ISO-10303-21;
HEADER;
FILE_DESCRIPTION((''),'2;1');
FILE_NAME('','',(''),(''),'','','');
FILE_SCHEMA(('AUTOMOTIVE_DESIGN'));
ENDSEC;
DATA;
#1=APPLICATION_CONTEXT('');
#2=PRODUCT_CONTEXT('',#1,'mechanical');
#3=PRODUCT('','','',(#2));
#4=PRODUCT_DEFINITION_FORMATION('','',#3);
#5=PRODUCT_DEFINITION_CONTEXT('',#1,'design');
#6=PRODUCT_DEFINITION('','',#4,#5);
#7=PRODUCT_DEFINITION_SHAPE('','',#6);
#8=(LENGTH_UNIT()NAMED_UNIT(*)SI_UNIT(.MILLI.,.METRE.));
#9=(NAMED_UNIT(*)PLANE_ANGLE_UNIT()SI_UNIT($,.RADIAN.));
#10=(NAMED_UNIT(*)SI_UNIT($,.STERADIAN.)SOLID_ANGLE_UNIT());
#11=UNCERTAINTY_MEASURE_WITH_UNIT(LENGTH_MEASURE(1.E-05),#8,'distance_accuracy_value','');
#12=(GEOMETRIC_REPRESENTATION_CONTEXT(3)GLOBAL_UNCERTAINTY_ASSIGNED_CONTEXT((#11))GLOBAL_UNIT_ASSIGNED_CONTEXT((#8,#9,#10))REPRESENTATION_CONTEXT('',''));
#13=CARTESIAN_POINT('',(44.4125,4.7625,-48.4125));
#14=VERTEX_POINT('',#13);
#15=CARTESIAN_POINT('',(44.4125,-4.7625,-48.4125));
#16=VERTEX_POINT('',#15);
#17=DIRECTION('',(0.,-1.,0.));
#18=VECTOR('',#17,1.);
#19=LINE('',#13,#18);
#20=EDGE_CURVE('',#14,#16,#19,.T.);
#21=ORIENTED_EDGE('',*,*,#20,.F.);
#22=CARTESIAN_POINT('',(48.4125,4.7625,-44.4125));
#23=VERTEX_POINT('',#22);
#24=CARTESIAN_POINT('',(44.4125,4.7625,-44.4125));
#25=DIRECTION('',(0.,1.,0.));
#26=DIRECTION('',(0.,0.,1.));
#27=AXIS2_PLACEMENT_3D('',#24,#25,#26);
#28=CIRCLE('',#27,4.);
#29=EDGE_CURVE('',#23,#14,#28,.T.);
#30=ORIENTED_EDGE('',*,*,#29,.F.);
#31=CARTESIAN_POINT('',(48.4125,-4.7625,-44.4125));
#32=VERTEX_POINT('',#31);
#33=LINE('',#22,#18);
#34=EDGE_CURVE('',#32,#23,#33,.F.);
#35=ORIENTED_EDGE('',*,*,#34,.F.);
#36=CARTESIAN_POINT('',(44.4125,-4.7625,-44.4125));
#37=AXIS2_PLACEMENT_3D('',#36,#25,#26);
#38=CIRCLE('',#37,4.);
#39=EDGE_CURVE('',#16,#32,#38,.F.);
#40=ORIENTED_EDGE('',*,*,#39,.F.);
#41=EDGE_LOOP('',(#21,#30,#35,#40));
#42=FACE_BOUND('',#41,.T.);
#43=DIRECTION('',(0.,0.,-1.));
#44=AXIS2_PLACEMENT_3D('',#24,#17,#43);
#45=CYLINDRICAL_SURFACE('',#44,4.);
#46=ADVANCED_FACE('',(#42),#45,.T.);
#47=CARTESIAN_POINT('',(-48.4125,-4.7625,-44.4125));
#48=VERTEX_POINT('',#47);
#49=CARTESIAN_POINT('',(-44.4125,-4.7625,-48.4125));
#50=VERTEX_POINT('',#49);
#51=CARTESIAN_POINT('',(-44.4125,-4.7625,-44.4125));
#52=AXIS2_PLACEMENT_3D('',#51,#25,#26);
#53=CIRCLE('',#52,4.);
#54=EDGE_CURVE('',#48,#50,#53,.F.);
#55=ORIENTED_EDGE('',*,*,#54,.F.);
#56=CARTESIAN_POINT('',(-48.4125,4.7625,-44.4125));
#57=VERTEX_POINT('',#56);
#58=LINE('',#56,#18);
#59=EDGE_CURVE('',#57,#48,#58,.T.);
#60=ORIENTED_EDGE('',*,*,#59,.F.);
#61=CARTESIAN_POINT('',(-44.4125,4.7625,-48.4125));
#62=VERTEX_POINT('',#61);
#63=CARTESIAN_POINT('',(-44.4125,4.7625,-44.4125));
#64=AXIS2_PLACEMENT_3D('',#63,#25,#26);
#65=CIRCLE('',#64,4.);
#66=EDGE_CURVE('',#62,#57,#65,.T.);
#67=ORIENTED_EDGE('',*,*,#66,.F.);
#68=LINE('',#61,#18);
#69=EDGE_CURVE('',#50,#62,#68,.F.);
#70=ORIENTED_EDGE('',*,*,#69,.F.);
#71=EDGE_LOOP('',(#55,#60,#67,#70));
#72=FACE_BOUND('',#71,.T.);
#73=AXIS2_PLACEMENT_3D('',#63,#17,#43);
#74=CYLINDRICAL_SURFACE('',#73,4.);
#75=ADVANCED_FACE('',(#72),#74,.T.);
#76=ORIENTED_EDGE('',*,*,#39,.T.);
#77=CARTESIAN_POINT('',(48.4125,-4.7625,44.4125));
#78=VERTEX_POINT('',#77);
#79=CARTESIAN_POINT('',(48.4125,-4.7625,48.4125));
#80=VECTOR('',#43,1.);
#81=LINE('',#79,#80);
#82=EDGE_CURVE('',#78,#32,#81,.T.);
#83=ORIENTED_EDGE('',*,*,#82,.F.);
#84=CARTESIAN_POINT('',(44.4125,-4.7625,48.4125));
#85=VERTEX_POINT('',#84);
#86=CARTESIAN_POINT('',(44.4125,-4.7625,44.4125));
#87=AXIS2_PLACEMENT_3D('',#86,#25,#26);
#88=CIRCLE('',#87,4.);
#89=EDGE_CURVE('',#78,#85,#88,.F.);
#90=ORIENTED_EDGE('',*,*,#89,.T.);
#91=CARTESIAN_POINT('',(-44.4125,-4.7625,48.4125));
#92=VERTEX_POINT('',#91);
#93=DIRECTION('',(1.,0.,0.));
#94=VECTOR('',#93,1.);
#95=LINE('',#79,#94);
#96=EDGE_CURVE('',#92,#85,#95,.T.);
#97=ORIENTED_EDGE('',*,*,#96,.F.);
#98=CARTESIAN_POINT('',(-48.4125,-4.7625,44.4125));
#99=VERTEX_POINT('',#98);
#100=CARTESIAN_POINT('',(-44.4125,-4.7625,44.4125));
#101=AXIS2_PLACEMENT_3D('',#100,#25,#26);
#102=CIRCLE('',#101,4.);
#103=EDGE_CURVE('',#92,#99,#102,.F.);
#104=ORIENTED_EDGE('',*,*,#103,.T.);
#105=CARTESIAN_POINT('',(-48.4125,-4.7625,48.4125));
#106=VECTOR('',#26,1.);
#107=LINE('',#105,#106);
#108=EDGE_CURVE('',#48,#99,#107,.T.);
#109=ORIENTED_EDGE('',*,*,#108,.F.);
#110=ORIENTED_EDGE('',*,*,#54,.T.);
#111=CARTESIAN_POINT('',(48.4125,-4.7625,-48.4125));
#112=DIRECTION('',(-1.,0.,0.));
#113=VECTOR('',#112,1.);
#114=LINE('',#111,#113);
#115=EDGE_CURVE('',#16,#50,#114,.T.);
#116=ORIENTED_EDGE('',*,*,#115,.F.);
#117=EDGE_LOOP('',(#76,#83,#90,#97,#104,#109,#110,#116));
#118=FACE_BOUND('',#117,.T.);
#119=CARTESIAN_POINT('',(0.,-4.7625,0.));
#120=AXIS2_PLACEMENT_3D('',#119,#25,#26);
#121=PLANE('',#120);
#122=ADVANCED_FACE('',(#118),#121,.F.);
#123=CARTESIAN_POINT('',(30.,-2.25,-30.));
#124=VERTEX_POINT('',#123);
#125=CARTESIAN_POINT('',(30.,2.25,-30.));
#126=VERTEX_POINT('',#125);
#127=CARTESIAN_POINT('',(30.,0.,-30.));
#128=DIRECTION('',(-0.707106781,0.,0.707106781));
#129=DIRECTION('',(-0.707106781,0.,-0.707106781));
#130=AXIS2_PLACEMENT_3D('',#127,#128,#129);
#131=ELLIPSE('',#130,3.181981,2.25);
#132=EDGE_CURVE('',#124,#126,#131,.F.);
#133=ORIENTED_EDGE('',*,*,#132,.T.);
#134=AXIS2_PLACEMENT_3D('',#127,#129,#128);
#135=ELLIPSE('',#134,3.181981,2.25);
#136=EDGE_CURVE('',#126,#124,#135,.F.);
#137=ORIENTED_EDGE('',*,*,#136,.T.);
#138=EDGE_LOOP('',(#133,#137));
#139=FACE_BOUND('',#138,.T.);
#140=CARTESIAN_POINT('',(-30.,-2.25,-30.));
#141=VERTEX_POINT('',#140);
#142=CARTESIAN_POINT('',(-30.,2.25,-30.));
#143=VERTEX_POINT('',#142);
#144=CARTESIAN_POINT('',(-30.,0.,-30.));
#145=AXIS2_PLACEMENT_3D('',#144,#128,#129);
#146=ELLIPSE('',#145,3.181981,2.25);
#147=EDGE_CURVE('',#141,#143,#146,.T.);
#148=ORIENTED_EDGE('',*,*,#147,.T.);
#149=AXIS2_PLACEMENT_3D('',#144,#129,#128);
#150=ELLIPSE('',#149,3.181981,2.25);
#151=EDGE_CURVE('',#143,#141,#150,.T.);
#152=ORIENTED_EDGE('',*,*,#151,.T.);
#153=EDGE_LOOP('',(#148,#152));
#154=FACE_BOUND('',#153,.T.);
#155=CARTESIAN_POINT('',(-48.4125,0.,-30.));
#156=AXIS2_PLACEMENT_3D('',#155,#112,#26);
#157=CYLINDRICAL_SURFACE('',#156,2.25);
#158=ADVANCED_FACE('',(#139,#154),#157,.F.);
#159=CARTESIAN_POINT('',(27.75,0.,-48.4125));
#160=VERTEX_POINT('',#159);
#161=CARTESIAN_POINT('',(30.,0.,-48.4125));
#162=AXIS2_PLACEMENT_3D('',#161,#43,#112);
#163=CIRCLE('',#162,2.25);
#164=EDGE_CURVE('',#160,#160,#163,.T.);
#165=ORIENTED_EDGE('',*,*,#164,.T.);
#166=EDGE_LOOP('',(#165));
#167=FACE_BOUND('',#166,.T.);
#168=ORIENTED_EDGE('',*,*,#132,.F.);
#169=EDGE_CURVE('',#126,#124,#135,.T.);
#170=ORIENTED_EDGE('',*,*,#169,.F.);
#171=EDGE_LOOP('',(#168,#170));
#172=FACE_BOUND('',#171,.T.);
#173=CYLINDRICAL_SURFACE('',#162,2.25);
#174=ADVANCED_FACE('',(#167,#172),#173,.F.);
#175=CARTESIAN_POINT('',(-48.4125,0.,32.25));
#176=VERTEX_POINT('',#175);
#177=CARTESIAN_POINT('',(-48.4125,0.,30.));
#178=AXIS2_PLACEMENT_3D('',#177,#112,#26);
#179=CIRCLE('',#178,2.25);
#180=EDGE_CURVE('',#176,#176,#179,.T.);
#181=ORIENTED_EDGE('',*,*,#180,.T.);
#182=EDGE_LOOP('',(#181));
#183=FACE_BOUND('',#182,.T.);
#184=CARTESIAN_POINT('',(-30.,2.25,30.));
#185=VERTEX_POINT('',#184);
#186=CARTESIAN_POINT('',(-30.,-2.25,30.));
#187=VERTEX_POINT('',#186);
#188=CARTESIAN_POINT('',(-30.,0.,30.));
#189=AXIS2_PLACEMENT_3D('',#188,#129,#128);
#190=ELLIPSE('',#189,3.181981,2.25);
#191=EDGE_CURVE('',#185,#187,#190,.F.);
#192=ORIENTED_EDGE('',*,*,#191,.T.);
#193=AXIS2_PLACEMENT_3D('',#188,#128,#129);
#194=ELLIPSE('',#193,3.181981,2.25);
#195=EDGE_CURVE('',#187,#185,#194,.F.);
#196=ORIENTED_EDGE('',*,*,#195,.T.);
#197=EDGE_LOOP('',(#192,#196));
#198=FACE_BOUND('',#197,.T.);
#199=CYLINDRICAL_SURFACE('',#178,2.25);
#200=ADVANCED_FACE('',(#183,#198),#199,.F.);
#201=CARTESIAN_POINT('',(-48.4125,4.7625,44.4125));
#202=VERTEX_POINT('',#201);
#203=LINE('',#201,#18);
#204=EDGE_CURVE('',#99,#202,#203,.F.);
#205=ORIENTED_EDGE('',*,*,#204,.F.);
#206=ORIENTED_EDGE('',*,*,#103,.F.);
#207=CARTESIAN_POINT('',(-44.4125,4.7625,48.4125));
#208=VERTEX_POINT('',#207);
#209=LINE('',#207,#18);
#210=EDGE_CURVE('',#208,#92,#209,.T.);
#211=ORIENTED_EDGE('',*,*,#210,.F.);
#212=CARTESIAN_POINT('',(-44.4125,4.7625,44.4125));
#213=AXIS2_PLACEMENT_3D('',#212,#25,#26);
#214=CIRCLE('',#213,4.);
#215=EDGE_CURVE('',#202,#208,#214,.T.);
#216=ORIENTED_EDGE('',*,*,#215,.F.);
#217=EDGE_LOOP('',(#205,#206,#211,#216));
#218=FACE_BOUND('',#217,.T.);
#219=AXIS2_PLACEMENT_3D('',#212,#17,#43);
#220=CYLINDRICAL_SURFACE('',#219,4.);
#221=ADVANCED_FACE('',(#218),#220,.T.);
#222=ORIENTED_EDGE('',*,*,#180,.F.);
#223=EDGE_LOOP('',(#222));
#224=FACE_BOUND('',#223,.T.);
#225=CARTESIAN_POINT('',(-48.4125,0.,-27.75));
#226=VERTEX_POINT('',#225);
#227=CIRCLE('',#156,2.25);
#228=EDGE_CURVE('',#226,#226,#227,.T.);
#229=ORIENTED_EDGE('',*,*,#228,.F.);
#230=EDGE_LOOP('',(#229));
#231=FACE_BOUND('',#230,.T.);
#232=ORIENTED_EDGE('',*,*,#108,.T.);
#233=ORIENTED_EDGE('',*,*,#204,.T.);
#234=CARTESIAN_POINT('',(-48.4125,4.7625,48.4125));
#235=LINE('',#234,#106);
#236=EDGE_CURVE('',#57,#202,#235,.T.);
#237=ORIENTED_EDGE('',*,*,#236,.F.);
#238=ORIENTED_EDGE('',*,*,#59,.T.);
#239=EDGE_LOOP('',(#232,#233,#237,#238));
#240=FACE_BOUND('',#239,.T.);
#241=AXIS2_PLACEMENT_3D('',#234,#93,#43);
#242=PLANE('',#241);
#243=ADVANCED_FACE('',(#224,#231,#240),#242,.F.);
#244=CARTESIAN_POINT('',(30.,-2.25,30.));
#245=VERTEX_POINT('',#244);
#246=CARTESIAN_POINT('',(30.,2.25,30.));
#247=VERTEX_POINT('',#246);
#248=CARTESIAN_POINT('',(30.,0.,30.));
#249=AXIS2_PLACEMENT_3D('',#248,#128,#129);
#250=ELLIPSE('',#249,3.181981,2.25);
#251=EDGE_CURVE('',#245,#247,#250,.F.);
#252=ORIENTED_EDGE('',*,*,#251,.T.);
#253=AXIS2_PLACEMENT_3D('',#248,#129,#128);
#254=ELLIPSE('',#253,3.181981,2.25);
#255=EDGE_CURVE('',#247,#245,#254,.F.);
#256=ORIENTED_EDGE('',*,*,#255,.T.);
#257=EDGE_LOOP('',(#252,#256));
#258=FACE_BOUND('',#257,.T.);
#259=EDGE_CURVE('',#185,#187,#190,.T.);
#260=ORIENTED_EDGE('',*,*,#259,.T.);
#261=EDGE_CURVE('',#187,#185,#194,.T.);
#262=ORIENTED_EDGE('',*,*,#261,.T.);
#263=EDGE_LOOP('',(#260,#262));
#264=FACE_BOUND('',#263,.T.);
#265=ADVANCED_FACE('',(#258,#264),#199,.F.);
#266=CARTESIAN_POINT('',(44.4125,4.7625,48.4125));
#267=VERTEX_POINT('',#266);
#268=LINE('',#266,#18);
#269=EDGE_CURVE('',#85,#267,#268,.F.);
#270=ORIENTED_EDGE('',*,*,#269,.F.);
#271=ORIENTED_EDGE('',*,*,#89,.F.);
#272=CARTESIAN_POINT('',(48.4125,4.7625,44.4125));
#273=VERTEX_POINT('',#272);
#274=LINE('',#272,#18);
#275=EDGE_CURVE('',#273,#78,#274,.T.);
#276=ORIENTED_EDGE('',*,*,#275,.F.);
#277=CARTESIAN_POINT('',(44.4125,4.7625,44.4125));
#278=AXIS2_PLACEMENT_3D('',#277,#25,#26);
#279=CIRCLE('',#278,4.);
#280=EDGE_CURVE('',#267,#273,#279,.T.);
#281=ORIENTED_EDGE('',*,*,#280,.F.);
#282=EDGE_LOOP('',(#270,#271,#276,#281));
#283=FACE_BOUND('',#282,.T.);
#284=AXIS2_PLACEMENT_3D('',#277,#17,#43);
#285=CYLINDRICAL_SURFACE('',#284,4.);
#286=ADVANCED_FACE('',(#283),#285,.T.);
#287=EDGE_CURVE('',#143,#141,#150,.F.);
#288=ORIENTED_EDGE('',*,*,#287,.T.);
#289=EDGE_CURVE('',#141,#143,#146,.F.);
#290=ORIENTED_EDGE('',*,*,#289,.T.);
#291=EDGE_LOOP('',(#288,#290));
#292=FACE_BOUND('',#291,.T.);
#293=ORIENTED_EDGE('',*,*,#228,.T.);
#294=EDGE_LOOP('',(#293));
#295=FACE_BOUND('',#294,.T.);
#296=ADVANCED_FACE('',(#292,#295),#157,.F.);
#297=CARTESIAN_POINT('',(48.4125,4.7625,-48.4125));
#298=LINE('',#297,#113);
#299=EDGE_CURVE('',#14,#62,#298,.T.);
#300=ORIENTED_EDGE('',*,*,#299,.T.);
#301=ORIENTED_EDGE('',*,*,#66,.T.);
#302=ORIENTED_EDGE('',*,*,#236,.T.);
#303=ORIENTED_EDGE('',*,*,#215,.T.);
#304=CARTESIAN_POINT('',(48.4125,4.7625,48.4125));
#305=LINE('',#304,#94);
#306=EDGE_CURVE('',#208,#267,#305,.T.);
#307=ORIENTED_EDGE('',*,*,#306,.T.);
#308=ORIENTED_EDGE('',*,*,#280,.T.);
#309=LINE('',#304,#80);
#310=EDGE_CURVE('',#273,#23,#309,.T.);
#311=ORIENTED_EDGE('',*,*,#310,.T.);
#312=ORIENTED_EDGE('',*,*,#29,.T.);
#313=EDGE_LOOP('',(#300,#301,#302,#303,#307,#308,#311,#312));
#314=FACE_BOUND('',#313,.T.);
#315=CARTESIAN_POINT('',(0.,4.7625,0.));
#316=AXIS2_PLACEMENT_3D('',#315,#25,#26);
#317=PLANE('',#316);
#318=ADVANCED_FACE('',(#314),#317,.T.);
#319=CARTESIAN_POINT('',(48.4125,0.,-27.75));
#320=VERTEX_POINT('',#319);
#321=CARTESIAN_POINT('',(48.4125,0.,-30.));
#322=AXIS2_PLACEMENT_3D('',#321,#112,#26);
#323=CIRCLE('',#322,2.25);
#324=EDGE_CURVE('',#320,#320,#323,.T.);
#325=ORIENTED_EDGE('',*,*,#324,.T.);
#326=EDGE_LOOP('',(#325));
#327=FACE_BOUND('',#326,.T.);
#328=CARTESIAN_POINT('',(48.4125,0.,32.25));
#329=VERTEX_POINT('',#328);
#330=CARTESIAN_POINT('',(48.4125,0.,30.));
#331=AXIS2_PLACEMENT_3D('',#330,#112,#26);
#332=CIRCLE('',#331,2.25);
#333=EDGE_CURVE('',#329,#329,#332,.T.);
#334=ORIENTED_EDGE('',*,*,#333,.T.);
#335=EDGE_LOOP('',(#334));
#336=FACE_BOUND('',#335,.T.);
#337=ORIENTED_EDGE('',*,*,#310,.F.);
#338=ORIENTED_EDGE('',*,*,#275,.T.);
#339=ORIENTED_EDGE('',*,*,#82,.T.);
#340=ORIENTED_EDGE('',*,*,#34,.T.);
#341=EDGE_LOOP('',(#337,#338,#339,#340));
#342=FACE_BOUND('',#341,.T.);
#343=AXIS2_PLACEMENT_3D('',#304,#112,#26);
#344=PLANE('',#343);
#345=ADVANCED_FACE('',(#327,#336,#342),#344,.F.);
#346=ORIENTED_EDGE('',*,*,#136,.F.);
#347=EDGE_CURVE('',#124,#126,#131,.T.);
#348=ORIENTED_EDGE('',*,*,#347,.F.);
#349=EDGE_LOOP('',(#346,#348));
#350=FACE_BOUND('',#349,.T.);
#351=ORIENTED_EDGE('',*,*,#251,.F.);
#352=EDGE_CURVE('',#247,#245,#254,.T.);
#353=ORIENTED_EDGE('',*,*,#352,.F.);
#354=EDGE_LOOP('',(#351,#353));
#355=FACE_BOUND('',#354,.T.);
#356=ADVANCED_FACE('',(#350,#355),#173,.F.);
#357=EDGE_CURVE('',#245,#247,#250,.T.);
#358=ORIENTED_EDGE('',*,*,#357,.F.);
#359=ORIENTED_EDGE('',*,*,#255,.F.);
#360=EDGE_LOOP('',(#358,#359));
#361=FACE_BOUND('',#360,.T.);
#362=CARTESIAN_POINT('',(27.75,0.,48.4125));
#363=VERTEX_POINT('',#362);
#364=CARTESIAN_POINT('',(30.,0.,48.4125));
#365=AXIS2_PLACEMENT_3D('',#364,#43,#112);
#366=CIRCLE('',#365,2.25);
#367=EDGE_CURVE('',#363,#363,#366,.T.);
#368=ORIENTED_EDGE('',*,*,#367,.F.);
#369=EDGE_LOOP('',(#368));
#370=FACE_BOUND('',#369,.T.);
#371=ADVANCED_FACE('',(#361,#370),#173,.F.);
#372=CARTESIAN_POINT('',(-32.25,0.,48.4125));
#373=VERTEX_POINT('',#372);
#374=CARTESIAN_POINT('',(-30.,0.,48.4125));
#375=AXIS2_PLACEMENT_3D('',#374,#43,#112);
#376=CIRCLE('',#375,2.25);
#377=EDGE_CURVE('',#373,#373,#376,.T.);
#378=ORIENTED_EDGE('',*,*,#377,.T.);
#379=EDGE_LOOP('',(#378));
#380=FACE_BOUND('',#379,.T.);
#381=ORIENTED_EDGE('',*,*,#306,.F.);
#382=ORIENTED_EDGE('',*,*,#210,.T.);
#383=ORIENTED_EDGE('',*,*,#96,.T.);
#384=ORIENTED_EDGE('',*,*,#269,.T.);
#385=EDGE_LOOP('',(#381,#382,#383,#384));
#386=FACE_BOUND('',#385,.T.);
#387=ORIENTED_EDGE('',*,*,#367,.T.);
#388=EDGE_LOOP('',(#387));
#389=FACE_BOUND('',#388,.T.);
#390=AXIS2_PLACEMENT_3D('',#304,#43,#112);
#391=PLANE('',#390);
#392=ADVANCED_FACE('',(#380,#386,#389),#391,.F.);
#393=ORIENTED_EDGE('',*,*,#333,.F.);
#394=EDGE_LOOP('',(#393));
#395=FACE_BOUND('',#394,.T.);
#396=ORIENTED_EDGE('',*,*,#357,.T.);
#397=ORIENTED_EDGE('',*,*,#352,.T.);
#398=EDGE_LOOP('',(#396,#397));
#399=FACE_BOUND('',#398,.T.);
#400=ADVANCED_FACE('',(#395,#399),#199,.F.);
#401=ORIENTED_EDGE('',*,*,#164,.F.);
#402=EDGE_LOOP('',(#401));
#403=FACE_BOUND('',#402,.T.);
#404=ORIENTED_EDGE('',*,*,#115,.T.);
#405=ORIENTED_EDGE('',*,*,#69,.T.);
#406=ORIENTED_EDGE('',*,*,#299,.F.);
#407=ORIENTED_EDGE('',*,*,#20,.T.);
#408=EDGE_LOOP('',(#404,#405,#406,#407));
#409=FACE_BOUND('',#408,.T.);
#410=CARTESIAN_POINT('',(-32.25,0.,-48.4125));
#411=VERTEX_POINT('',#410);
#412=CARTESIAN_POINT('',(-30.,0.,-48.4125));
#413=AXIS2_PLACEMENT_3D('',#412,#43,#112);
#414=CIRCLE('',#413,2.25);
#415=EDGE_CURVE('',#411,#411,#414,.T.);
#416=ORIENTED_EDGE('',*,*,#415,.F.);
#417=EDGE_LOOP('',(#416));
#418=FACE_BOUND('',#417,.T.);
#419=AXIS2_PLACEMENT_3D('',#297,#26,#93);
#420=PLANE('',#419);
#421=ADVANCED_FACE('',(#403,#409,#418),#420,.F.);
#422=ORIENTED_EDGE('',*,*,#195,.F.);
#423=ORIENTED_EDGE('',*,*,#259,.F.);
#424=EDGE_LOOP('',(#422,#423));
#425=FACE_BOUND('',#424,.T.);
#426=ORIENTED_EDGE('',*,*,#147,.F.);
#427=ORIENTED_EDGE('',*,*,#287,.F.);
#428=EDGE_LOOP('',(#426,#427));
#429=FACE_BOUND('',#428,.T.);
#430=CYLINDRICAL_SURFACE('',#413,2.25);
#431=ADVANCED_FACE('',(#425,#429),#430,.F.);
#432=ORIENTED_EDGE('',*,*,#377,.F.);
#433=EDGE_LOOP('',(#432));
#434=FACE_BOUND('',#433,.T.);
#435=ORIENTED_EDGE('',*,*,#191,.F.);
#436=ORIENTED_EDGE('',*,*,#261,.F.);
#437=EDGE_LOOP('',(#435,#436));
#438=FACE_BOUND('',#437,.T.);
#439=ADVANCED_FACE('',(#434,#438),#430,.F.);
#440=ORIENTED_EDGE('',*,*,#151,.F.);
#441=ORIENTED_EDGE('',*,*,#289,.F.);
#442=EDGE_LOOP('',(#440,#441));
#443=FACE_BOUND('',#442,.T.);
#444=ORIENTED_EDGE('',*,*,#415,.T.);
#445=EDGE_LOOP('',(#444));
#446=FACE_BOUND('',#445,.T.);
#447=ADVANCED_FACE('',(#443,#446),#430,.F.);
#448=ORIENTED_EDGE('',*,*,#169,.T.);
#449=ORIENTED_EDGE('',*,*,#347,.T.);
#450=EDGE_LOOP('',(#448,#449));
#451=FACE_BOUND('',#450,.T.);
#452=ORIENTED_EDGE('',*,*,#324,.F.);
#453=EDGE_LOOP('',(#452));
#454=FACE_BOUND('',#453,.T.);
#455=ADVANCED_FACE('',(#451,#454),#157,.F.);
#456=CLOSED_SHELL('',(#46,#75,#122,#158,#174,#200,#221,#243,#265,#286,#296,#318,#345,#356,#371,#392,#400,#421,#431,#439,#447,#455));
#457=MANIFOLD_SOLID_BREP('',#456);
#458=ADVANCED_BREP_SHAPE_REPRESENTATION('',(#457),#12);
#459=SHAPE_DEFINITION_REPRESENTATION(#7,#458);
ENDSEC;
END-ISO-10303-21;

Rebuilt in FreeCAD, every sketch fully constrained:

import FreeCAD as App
import Part
import Sketcher

V = App.Vector
Q = App.Units.Quantity


def edges_at(feature, points):
    """Names of the edges that pass closest to the given points."""
    edges = feature.Shape.Edges
    near = lambda p: min(range(len(edges)), key=lambda i: edges[i].distToShape(Part.Vertex(*p))[0])
    return sorted({f"Edge{near(p) + 1}" for p in points})


def add_polygon(sketch, points):
    """Adds a closed chain of lines whose ends are joined by coincident constraints."""
    first, n = sketch.GeometryCount, len(points)
    for a, b in zip(points, points[1:] + points[:1]):
        sketch.addGeometry(Part.LineSegment(App.Vector(*a, 0), App.Vector(*b, 0)), False)
    for i in range(n):
        sketch.addConstraint(Sketcher.Constraint("Coincident", first + i, 2, first + (i + 1) % n, 1))

doc = App.newDocument("Part")
body = doc.addObject("PartDesign::Body", "Body")

# Sketch on XZ plane
sketch1 = body.newObject("Sketcher::SketchObject", "Sketch")
sketch1.AttachmentSupport = (doc.getObject("XZ_Plane"), [""])
sketch1.MapMode = "FlatFace"
add_polygon(sketch1, [(-48, -48), (-48, 48), (48, 48), (48, -48)])  # lines 0-3
sketch1.addConstraint(Sketcher.Constraint("Vertical", 0))
sketch1.addConstraint(Sketcher.Constraint("Horizontal", 1))
sketch1.addConstraint(Sketcher.Constraint("Vertical", 2))
sketch1.addConstraint(Sketcher.Constraint("Horizontal", 3))
sketch1.addConstraint(Sketcher.Constraint("Symmetric", 0, 2, 2, 2, -1, 1))
sketch1.addConstraint(Sketcher.Constraint("Equal", 3, 0))
sketch1.addConstraint(Sketcher.Constraint("DistanceX", 1, 1, 1, 2, Q("96.825 mm")))
pad1 = body.newObject("PartDesign::Pad", "Pad")
pad1.Profile = sketch1
pad1.Length = 9.525
pad1.Midplane = True
doc.recompute()

fillet = body.newObject("PartDesign::Fillet", "Fillet")
fillet.Base = (pad1, edges_at(pad1, [
    (-48.413, 0, -48.413),
    (48.413, 0, -48.413),
    (48.413, 0, 48.413),
    (-48.413, 0, 48.413),
]))
fillet.Radius = 4

# Sketch on YZ plane
sketch2 = body.newObject("Sketcher::SketchObject", "Sketch001")
sketch2.AttachmentSupport = (doc.getObject("YZ_Plane"), [""])
sketch2.MapMode = "FlatFace"
sketch2.AttachmentOffset = App.Placement(V(0, 0, -48.4125), App.Rotation())
sketch2.addGeometry(Part.Circle(V(0, -30, 0), V(0, 0, 1), 2.2), False)
sketch2.addGeometry(Part.Circle(V(0, 30, 0), V(0, 0, 1), 2.2), False)
sketch2.addConstraint(Sketcher.Constraint("Equal", 0, 1))
sketch2.addConstraint(Sketcher.Constraint("Symmetric", 0, 3, 1, 3, -1, 1))
sketch2.addConstraint(Sketcher.Constraint("PointOnObject", 0, 3, -2))
sketch2.addConstraint(Sketcher.Constraint("Diameter", 0, Q("4.5 mm")))
sketch2.addConstraint(Sketcher.Constraint("DistanceY", 0, 3, -1, 1, Q("30 mm")))
doc.recompute()
hole = body.newObject("PartDesign::Hole", "Hole")
hole.Profile = sketch2
hole.ThreadType = "None"
hole.Diameter = 4.5
hole.DepthType = "ThroughAll"
hole.Reversed = True

# Sketch on XY plane
sketch3 = body.newObject("Sketcher::SketchObject", "Sketch002")
sketch3.AttachmentSupport = (doc.getObject("XY_Plane"), [""])
sketch3.MapMode = "FlatFace"
sketch3.AttachmentOffset = App.Placement(V(0, 0, -48.4125), App.Rotation())
sketch3.addGeometry(Part.Circle(V(30, 0, 0), V(0, 0, 1), 2.2), False)
sketch3.addGeometry(Part.Circle(V(-30, 0, 0), V(0, 0, 1), 2.2), False)
sketch3.addConstraint(Sketcher.Constraint("Equal", 0, 1))
sketch3.addConstraint(Sketcher.Constraint("Symmetric", 0, 3, 1, 3, -1, 1))
sketch3.addConstraint(Sketcher.Constraint("PointOnObject", 0, 3, -1))
sketch3.addConstraint(Sketcher.Constraint("Diameter", 0, Q("4.5 mm")))
sketch3.addConstraint(Sketcher.Constraint("DistanceX", -1, 1, 0, 3, Q("30 mm")))
doc.recompute()
hole2 = body.newObject("PartDesign::Hole", "Hole001")
hole2.Profile = sketch3
hole2.ThreadType = "None"
hole2.Diameter = 4.5
hole2.DepthType = "ThroughAll"
hole2.Reversed = True

doc.recompute()
